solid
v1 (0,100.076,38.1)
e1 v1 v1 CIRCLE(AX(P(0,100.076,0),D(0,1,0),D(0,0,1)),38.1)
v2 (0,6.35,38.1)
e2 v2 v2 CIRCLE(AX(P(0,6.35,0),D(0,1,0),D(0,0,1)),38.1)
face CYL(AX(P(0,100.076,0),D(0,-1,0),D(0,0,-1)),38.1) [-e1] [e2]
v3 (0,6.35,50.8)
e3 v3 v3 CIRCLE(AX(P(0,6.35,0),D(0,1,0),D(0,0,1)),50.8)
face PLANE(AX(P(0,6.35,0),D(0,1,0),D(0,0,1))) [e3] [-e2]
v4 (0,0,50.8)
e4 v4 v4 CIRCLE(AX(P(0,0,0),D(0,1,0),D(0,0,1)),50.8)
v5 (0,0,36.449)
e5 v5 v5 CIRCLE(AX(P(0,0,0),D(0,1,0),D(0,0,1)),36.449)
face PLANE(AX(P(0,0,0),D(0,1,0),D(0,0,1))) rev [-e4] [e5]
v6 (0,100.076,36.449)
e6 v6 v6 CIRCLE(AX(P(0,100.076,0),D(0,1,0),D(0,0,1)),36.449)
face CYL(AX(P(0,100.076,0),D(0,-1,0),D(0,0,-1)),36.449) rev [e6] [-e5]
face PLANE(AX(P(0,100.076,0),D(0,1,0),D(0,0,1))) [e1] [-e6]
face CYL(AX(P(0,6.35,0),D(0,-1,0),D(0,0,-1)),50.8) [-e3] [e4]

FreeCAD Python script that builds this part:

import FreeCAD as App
import Part
import Sketcher
Q = App.Units.Quantity

doc = App.newDocument("Part")
params = doc.addObject("Spreadsheet::Sheet", "Params")
for row, (alias, value) in enumerate([
    ("sketch1_diameter", "3 in"),
    ("sketch1_diameter2", "2.87 in"),
    ("pad1_length", "3.94 in"),
    ("sketch2_diameter", "4 in"),
    ("sketch2_diameter2", "3 in"),
    ("pad2_length", "0.25 in"),
], start=1):
    params.set(f"A{row}", alias)
    params.set(f"B{row}", "=" + value)
    params.setAlias(f"B{row}", alias)

body = doc.addObject("PartDesign::Body", "Body")

sketch1 = body.newObject("Sketcher::SketchObject", "Sketch")
sketch1.AttachmentSupport = (doc.getObject("XZ_Plane"), [""])
sketch1.MapMode = "FlatFace"
sketch1.addGeometry(Part.Circle(App.Vector(0, 0, 0), App.Vector(0, 0, 1), 38.1), False)
sketch1.addGeometry(Part.Circle(App.Vector(0, 0, 0), App.Vector(0, 0, 1), 36.449), False)
sketch1.addConstraint(Sketcher.Constraint("Coincident", 0, 3, -1, 1))
sketch1.addConstraint(Sketcher.Constraint("Coincident", 1, 3, -1, 1))
sketch1.addConstraint(Sketcher.Constraint("Diameter", 0, Q("3 in")))
sketch1.addConstraint(Sketcher.Constraint("Diameter", 1, Q("2.87 in")))
sketch1.setExpression("Constraints[2]", "Params.sketch1_diameter")
sketch1.setExpression("Constraints[3]", "Params.sketch1_diameter2")
pad1 = body.newObject("PartDesign::Pad", "Pad")
pad1.Profile = sketch1
pad1.setExpression("Length", "Params.pad1_length")
pad1.Reversed = True

sketch2 = body.newObject("Sketcher::SketchObject", "Sketch001")
sketch2.AttachmentSupport = (doc.getObject("XZ_Plane"), [""])
sketch2.MapMode = "FlatFace"
sketch2.addGeometry(Part.Circle(App.Vector(0, 0, 0), App.Vector(0, 0, 1), 50.8), False)
sketch2.addGeometry(Part.Circle(App.Vector(0, 0, 0), App.Vector(0, 0, 1), 38.1), False)
sketch2.addConstraint(Sketcher.Constraint("Coincident", 0, 3, -1, 1))
sketch2.addConstraint(Sketcher.Constraint("Coincident", 1, 3, -1, 1))
sketch2.addConstraint(Sketcher.Constraint("Diameter", 0, Q("4 in")))
sketch2.addConstraint(Sketcher.Constraint("Diameter", 1, Q("3 in")))
sketch2.setExpression("Constraints[2]", "Params.sketch2_diameter")
sketch2.setExpression("Constraints[3]", "Params.sketch2_diameter2")
pad2 = body.newObject("PartDesign::Pad", "Pad001")
pad2.Profile = sketch2
pad2.setExpression("Length", "Params.pad2_length")
pad2.Reversed = True

doc.recompute()
